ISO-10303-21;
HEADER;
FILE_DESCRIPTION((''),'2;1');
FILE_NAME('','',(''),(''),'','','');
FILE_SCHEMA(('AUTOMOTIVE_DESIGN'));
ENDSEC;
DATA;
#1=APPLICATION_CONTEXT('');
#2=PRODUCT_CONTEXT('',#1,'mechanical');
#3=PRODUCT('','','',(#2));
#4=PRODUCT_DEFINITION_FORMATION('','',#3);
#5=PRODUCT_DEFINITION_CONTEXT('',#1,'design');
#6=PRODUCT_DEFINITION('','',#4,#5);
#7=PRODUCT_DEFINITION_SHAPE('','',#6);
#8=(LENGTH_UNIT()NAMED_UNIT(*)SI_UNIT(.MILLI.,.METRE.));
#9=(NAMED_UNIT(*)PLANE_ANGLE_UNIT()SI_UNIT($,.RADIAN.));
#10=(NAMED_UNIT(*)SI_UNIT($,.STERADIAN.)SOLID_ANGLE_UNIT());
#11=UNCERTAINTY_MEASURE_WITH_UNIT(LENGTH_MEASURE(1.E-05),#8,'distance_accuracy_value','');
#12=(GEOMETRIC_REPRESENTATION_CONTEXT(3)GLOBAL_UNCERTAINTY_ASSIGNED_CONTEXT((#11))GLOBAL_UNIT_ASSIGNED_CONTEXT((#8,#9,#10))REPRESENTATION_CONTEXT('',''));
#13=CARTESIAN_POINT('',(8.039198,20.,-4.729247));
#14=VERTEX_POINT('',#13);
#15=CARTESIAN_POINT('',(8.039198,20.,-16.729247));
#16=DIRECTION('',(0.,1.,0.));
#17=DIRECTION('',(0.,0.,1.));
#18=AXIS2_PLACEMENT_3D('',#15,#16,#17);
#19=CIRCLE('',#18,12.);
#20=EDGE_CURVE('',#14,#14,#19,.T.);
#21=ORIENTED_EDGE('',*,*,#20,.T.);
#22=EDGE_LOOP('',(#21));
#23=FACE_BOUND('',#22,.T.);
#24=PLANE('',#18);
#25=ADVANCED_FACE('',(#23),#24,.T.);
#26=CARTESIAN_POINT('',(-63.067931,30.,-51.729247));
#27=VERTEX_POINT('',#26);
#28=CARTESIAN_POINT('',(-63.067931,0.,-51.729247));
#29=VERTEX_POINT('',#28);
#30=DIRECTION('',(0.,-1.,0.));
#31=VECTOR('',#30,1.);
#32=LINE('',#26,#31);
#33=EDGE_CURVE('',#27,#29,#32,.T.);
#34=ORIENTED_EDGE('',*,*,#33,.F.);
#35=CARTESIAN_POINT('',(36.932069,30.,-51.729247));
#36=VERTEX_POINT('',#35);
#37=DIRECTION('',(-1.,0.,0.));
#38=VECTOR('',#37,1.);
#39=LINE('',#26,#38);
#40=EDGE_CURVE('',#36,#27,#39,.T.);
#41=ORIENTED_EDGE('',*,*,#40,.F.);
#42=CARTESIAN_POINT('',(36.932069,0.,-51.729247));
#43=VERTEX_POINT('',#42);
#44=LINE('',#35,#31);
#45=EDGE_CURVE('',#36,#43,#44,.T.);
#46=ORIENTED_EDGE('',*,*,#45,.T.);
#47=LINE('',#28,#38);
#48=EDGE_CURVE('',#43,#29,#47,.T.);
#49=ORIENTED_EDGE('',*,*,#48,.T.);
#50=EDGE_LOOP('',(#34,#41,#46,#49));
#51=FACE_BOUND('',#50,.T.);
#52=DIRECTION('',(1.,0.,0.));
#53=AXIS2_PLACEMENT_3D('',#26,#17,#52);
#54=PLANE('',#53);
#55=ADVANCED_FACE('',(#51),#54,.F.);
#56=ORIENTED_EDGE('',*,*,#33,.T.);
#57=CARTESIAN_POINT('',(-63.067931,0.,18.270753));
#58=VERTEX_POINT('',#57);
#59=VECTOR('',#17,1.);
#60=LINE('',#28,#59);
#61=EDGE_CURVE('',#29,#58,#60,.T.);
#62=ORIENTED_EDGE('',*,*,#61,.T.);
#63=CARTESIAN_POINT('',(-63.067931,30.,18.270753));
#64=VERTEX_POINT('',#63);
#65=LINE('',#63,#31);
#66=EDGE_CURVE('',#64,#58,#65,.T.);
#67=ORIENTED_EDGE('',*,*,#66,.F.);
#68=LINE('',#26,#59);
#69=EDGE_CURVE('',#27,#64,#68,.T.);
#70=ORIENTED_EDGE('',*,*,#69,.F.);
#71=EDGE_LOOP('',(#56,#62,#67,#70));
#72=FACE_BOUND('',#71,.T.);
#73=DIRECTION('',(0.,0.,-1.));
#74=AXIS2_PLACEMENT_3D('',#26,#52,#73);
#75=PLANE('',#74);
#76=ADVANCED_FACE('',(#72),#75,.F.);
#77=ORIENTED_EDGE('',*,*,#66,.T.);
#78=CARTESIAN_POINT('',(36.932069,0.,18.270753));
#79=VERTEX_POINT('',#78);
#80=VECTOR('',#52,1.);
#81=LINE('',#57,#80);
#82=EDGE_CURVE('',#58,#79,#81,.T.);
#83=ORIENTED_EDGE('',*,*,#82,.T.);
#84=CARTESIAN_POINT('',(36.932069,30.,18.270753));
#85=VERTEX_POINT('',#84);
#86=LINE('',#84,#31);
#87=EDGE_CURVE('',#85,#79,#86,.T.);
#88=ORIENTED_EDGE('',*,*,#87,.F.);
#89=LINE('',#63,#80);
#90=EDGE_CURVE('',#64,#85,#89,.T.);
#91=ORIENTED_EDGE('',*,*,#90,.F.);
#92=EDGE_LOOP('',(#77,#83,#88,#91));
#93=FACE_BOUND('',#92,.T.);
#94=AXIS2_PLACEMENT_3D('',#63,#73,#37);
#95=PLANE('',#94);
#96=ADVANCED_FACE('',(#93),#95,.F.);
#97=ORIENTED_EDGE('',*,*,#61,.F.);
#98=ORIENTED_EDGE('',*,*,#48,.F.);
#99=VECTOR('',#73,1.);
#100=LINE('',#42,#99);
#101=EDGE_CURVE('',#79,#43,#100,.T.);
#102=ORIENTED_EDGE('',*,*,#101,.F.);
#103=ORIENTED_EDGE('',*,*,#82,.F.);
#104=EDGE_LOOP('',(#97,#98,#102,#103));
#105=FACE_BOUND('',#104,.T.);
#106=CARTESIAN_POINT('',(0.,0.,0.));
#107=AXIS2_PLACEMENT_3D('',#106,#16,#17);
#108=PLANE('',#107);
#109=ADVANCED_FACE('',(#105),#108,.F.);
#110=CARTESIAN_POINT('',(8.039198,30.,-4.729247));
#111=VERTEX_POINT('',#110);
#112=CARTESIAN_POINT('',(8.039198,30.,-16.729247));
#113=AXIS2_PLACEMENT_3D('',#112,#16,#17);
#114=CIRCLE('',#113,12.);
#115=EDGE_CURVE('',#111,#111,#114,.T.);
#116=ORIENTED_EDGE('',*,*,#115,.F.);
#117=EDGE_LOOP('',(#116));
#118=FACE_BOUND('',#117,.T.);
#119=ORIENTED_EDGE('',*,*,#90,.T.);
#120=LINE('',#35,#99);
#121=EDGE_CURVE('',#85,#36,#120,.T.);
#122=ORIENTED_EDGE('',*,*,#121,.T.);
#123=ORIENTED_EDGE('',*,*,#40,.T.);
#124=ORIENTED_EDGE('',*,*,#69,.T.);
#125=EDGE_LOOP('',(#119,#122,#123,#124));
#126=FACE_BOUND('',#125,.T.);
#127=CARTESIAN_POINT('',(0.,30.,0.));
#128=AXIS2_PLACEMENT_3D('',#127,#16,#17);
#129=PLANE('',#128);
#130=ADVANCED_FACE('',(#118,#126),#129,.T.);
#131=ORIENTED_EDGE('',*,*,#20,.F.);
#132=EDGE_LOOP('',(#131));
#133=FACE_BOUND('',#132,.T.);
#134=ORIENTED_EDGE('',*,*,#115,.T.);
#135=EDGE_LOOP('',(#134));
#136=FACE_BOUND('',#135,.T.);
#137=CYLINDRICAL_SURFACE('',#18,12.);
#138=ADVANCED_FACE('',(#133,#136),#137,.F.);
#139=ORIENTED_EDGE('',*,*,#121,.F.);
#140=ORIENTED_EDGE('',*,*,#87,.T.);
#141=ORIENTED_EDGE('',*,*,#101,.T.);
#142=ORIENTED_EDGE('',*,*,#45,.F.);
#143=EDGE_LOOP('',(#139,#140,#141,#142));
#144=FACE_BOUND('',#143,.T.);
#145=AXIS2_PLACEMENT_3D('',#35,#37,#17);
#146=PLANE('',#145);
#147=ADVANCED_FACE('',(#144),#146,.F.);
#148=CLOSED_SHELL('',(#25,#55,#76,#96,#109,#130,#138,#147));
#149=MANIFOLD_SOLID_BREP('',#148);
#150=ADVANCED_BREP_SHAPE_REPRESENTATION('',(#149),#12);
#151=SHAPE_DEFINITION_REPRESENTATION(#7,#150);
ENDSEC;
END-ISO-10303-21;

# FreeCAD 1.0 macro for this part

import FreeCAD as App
import Part
import Sketcher

V = App.Vector


def add_polygon(sketch, points):
    """Adds a closed chain of lines whose ends are joined by coincident constraints."""
    first, n = sketch.GeometryCount, len(points)
    for a, b in zip(points, points[1:] + points[:1]):
        sketch.addGeometry(Part.LineSegment(App.Vector(*a, 0), App.Vector(*b, 0)), False)
    for i in range(n):
        sketch.addConstraint(Sketcher.Constraint("Coincident", first + i, 2, first + (i + 1) % n, 1))

doc = App.newDocument("Part")
params = doc.addObject("Spreadsheet::Sheet", "Params")
for row, (alias, value) in enumerate([
    ("sketch1_width", "100 mm"),
    ("sketch1_height", "70 mm"),
    ("pad1_length", "30 mm"),
    ("sketch2_diameter", "24 mm"),
    ("pocket1_length", "10 mm"),
], start=1):
    params.set(f"A{row}", alias)
    params.set(f"B{row}", "=" + value)
    params.setAlias(f"B{row}", alias)

body = doc.addObject("PartDesign::Body", "Body")

sketch1 = body.newObject("Sketcher::SketchObject", "Sketch")
sketch1.AttachmentSupport = (doc.getObject("XZ_Plane"), [""])
sketch1.MapMode = "FlatFace"
add_polygon(sketch1, [(-63, -52), (-63, 18), (37, 18), (37, -52)])
sketch1.addConstraint([
    Sketcher.Constraint("Vertical", 0),
    Sketcher.Constraint("Horizontal", 1),
    Sketcher.Constraint("Vertical", 2),
    Sketcher.Constraint("Horizontal", 3),
    Sketcher.Constraint("DistanceX", 1, 1, 1, 2, 100.0),
    Sketcher.Constraint("DistanceY", 0, 1, 0, 2, 70.0),
    Sketcher.Constraint("DistanceX", 0, 2, -1, 1, 63.067931),
    Sketcher.Constraint("DistanceY", -1, 1, 0, 2, 18.270753),
])
sketch1.setExpression("Constraints[8]", "Params.sketch1_width")
sketch1.setExpression("Constraints[9]", "Params.sketch1_height")
pad1 = body.newObject("PartDesign::Pad", "Pad")
pad1.Profile = sketch1
pad1.setExpression("Length", "Params.pad1_length")
pad1.Reversed = True

sketch2 = body.newObject("Sketcher::SketchObject", "Sketch001")
sketch2.AttachmentSupport = (doc.getObject("XZ_Plane"), [""])
sketch2.MapMode = "FlatFace"
sketch2.AttachmentOffset = App.Placement(V(0, 0, -30), App.Rotation())
sketch2.addGeometry(Part.Circle(V(8, -17, 0), V(0, 0, 1), 12), False)
sketch2.addConstraint([
    Sketcher.Constraint("Diameter", 0, 24.0),
    Sketcher.Constraint("DistanceX", -1, 1, 0, 3, 8.039198),
    Sketcher.Constraint("DistanceY", 0, 3, -1, 1, 16.729247),
])
sketch2.setExpression("Constraints[0]", "Params.sketch2_diameter")
pocket1 = body.newObject("PartDesign::Pocket", "Pocket")
pocket1.Profile = sketch2
pocket1.setExpression("Length", "Params.pocket1_length")
pocket1.Reversed = True

doc.recompute()
